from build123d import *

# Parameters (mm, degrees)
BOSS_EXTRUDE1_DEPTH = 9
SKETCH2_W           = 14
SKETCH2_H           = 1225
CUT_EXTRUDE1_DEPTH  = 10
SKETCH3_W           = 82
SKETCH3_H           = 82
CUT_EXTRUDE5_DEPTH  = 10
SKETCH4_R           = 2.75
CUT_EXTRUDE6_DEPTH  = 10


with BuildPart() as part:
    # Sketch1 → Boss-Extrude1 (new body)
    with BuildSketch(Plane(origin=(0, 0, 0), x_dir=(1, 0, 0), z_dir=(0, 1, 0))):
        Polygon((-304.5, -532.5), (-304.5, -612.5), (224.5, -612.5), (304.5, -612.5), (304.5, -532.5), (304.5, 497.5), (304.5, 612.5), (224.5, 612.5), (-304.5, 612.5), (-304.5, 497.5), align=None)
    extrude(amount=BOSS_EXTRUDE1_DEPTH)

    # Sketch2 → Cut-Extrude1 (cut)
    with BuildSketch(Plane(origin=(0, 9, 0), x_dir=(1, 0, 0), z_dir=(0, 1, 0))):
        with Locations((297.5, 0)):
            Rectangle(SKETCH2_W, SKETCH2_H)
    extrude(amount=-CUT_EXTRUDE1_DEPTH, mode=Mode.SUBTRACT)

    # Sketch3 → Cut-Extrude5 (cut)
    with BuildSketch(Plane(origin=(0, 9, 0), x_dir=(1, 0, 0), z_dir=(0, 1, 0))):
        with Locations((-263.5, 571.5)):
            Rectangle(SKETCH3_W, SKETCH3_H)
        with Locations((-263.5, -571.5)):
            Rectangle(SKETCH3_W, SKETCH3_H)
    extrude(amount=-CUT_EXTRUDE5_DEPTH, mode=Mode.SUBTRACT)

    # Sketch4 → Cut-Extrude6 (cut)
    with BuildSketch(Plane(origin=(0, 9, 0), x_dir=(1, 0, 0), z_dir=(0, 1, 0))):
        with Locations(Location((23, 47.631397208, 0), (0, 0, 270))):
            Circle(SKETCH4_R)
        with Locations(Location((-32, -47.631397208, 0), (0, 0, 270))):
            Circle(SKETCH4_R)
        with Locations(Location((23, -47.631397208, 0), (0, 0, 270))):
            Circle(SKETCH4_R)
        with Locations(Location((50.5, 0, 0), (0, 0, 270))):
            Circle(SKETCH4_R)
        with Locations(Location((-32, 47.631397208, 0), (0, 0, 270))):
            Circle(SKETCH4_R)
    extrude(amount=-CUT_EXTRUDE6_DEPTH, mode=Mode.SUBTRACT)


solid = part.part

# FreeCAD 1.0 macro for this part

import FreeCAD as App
import Part
import Sketcher
from FreeCAD import Vector

doc = App.newDocument("Part")
body = doc.addObject("PartDesign::Body", "Body")

sketch1 = body.newObject("Sketcher::SketchObject", "Sketch")
sketch1.AttachmentSupport = (doc.getObject("XZ_Plane"), [""])
sketch1.MapMode = "FlatFace"
sketch1.addGeometry(Part.LineSegment(Vector(-304, 612, 0), Vector(304, 612, 0)), False)
sketch1.addGeometry(Part.LineSegment(Vector(304, 612, 0), Vector(304, -612, 0)), False)
sketch1.addGeometry(Part.LineSegment(Vector(304, -612, 0), Vector(-304, -612, 0)), False)
sketch1.addGeometry(Part.LineSegment(Vector(-304, -612, 0), Vector(-304, 612, 0)), False)
sketch1.addConstraint(Sketcher.Constraint("Coincident", 0, 2, 1, 1))
sketch1.addConstraint(Sketcher.Constraint("Coincident", 1, 2, 2, 1))
sketch1.addConstraint(Sketcher.Constraint("Coincident", 2, 2, 3, 1))
sketch1.addConstraint(Sketcher.Constraint("Coincident", 3, 2, 0, 1))
sketch1.addConstraint(Sketcher.Constraint("Horizontal", 0))
sketch1.addConstraint(Sketcher.Constraint("Vertical", 1))
sketch1.addConstraint(Sketcher.Constraint("Horizontal", 2))
sketch1.addConstraint(Sketcher.Constraint("Vertical", 3))
sketch1.addConstraint(Sketcher.Constraint("Symmetric", 0, 2, 2, 2, -1, 1))
sketch1.addConstraint(Sketcher.Constraint("DistanceX", 0, 1, 0, 2, 609.0))
sketch1.addConstraint(Sketcher.Constraint("DistanceY", 1, 2, 1, 1, 1225.0))
pad1 = body.newObject("PartDesign::Pad", "Pad")
pad1.Profile = sketch1
pad1.Length = 9
pad1.Reversed = True

sketch2 = body.newObject("Sketcher::SketchObject", "Sketch001")
sketch2.AttachmentSupport = (doc.getObject("XZ_Plane"), [""])
sketch2.MapMode = "FlatFace"
sketch2.AttachmentOffset = App.Placement(Vector(0, 0, -9), App.Rotation())
sketch2.addGeometry(Part.LineSegment(Vector(290, -612, 0), Vector(290, 612, 0)), False)
sketch2.addGeometry(Part.LineSegment(Vector(290, 612, 0), Vector(304, 612, 0)), False)
sketch2.addGeometry(Part.LineSegment(Vector(304, 612, 0), Vector(304, -612, 0)), False)
sketch2.addGeometry(Part.LineSegment(Vector(304, -612, 0), Vector(290, -612, 0)), False)
sketch2.addConstraint(Sketcher.Constraint("Coincident", 0, 2, 1, 1))
sketch2.addConstraint(Sketcher.Constraint("Coincident", 1, 2, 2, 1))
sketch2.addConstraint(Sketcher.Constraint("Coincident", 2, 2, 3, 1))
sketch2.addConstraint(Sketcher.Constraint("Coincident", 3, 2, 0, 1))
sketch2.addConstraint(Sketcher.Constraint("Vertical", 0))
sketch2.addConstraint(Sketcher.Constraint("Horizontal", 1))
sketch2.addConstraint(Sketcher.Constraint("Vertical", 2))
sketch2.addConstraint(Sketcher.Constraint("Horizontal", 3))
sketch2.addConstraint(Sketcher.Constraint("DistanceX", 1, 1, 1, 2, 14.0))
sketch2.addConstraint(Sketcher.Constraint("DistanceY", 0, 1, 0, 2, 1225.0))
sketch2.addConstraint(Sketcher.Constraint("DistanceX", -1, 1, 0, 2, 290.5))
sketch2.addConstraint(Sketcher.Constraint("DistanceY", -1, 1, 0, 2, 612.5))
pocket1 = body.newObject("PartDesign::Pocket", "Pocket")
pocket1.Profile = sketch2
pocket1.Length = 10
pocket1.Reversed = True

sketch3 = body.newObject("Sketcher::SketchObject", "Sketch002")
sketch3.AttachmentSupport = (doc.getObject("XZ_Plane"), [""])
sketch3.MapMode = "FlatFace"
sketch3.AttachmentOffset = App.Placement(Vector(0, 0, -9), App.Rotation())
sketch3.addGeometry(Part.LineSegment(Vector(-304, -612, 0), Vector(-304, -530, 0)), False)
sketch3.addGeometry(Part.LineSegment(Vector(-304, -530, 0), Vector(-222, -530, 0)), False)
sketch3.addGeometry(Part.LineSegment(Vector(-222, -530, 0), Vector(-222, -612, 0)), False)
sketch3.addGeometry(Part.LineSegment(Vector(-222, -612, 0), Vector(-304, -612, 0)), False)
sketch3.addGeometry(Part.LineSegment(Vector(-304, 530, 0), Vector(-304, 612, 0)), False)
sketch3.addGeometry(Part.LineSegment(Vector(-304, 612, 0), Vector(-222, 612, 0)), False)
sketch3.addGeometry(Part.LineSegment(Vector(-222, 612, 0), Vector(-222, 530, 0)), False)
sketch3.addGeometry(Part.LineSegment(Vector(-222, 530, 0), Vector(-304, 530, 0)), False)
sketch3.addConstraint(Sketcher.Constraint("Coincident", 0, 2, 1, 1))
sketch3.addConstraint(Sketcher.Constraint("Coincident", 1, 2, 2, 1))
sketch3.addConstraint(Sketcher.Constraint("Coincident", 2, 2, 3, 1))
sketch3.addConstraint(Sketcher.Constraint("Coincident", 3, 2, 0, 1))
sketch3.addConstraint(Sketcher.Constraint("Coincident", 4, 2, 5, 1))
sketch3.addConstraint(Sketcher.Constraint("Coincident", 5, 2, 6, 1))
sketch3.addConstraint(Sketcher.Constraint("Coincident", 6, 2, 7, 1))
sketch3.addConstraint(Sketcher.Constraint("Coincident", 7, 2, 4, 1))
sketch3.addConstraint(Sketcher.Constraint("Vertical", 0))
sketch3.addConstraint(Sketcher.Constraint("Horizontal", 1))
sketch3.addConstraint(Sketcher.Constraint("Vertical", 2))
sketch3.addConstraint(Sketcher.Constraint("Horizontal", 3))
sketch3.addConstraint(Sketcher.Constraint("Vertical", 4))
sketch3.addConstraint(Sketcher.Constraint("Horizontal", 5))
sketch3.addConstraint(Sketcher.Constraint("Vertical", 6))
sketch3.addConstraint(Sketcher.Constraint("Horizontal", 7))
sketch3.addConstraint(Sketcher.Constraint("Symmetric", 3, 2, 4, 2, -1))
sketch3.addConstraint(Sketcher.Constraint("Symmetric", 1, 2, 6, 2, -1))
sketch3.addConstraint(Sketcher.Constraint("Equal", 7, 0))
sketch3.addConstraint(Sketcher.Constraint("DistanceX", 1, 1, 1, 2, 82.0))
sketch3.addConstraint(Sketcher.Constraint("DistanceY", 0, 2, 4, 2, 1143.0))
sketch3.addConstraint(Sketcher.Constraint("DistanceX", 0, 2, -1, 1, 304.5))
pocket2 = body.newObject("PartDesign::Pocket", "Pocket001")
pocket2.Profile = sketch3
pocket2.Length = 10
pocket2.Reversed = True

sketch4 = body.newObject("Sketcher::SketchObject", "Sketch003")
sketch4.AttachmentSupport = (doc.getObject("XZ_Plane"), [""])
sketch4.MapMode = "FlatFace"
sketch4.AttachmentOffset = App.Placement(Vector(0, 0, -9), App.Rotation())
sketch4.addGeometry(Part.Circle(Vector(23, -47.6, 0), Vector(0, 0, 1), 2.8), False)
sketch4.addGeometry(Part.Circle(Vector(-32, 47.6, 0), Vector(0, 0, 1), 2.8), False)
sketch4.addGeometry(Part.Circle(Vector(23, 47.6, 0), Vector(0, 0, 1), 2.8), False)
sketch4.addGeometry(Part.Circle(Vector(50.5, 0, 0), Vector(0, 0, 1), 2.8), False)
sketch4.addGeometry(Part.Circle(Vector(-32, -47.6, 0), Vector(0, 0, 1), 2.8), False)
sketch4.addConstraint(Sketcher.Constraint("Equal", 0, 1))
sketch4.addConstraint(Sketcher.Constraint("Equal", 1, 2))
sketch4.addConstraint(Sketcher.Constraint("Equal", 2, 3))
sketch4.addConstraint(Sketcher.Constraint("Equal", 3, 4))
sketch4.addConstraint(Sketcher.Constraint("Symmetric", 0, 3, 2, 3, -1))
sketch4.addConstraint(Sketcher.Constraint("Symmetric", 1, 3, 4, 3, -1))
sketch4.addConstraint(Sketcher.Constraint("PointOnObject", 3, 3, -1))
sketch4.addConstraint(Sketcher.Constraint("Horizontal", 1, 3, 2, 3))
sketch4.addConstraint(Sketcher.Constraint("Diameter", 0, 5.5))
sketch4.addConstraint(Sketcher.Constraint("DistanceX", -1, 1, 0, 3, 23.0))
sketch4.addConstraint(Sketcher.Constraint("DistanceX", 1, 3, -1, 1, 32.0))
sketch4.addConstraint(Sketcher.Constraint("DistanceX", -1, 1, 3, 3, 50.5))
sketch4.addConstraint(Sketcher.Constraint("DistanceY", 0, 3, -1, 1, 47.631397))
pocket3 = body.newObject("PartDesign::Pocket", "Pocket002")
pocket3.Profile = sketch4
pocket3.Length = 10
pocket3.Reversed = True

doc.recompute()
